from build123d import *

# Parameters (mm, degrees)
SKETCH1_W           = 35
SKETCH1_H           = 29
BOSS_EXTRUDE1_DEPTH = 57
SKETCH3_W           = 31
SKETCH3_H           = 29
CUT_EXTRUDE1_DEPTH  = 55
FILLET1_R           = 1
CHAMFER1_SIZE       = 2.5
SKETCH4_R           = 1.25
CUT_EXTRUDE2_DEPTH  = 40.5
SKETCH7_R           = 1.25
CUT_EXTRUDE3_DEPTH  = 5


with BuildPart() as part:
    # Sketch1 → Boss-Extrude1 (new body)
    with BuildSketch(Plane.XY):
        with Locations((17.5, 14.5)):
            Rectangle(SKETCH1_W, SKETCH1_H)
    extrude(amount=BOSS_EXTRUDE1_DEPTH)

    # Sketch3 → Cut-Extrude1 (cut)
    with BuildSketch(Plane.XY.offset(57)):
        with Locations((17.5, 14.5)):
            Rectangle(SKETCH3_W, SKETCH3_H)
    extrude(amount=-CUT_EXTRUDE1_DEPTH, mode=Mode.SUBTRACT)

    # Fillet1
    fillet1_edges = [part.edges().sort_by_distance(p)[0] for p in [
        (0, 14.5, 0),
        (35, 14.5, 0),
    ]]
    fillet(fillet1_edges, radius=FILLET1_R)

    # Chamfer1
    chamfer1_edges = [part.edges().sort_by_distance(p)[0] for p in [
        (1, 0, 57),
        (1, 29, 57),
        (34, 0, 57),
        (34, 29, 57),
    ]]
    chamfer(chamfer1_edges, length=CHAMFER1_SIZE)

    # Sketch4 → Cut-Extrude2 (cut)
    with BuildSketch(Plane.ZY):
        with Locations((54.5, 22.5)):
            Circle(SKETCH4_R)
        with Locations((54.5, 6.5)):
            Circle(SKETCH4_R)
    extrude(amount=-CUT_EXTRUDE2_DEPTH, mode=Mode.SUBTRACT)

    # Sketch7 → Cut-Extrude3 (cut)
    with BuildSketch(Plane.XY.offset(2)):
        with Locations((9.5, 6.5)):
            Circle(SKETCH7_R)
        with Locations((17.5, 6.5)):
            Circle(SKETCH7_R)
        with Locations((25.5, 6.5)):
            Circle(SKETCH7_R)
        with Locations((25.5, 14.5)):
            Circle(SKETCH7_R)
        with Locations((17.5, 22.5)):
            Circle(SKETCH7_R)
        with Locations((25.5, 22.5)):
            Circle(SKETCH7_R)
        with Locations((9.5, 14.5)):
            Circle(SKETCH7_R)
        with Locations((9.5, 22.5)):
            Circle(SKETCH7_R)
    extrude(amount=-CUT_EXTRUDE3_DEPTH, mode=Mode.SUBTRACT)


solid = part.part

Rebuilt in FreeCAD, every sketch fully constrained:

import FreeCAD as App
import Part
import Sketcher

V = App.Vector
Q = App.Units.Quantity


def edges_at(feature, points):
    """Names of the edges that pass closest to the given points."""
    edges = feature.Shape.Edges
    near = lambda p: min(range(len(edges)), key=lambda i: edges[i].distToShape(Part.Vertex(*p))[0])
    return sorted({f"Edge{near(p) + 1}" for p in points})

doc = App.newDocument("Part")
body = doc.addObject("PartDesign::Body", "Body")

# Sketch on XY plane
sketch1 = doc.addObject("Sketcher::SketchObject", "Sketch")
body.addObject(sketch1)
sketch1.AttachmentSupport = (doc.XY_Plane, [""])
sketch1.MapMode = "FlatFace"
sketch1.addGeometry([
    Part.LineSegment(V(0, 29, 0), V(0, 0, 0)),
    Part.LineSegment(V(0, 0, 0), V(35, 0, 0)),
    Part.LineSegment(V(35, 0, 0), V(35, 29, 0)),
    Part.LineSegment(V(35, 29, 0), V(0, 29, 0)),
], False)
sketch1.addConstraint([
    Sketcher.Constraint("Coincident", 0, 2, 1, 1),
    Sketcher.Constraint("Coincident", 1, 2, 2, 1),
    Sketcher.Constraint("Coincident", 2, 2, 3, 1),
    Sketcher.Constraint("Coincident", 3, 2, 0, 1),
    Sketcher.Constraint("Vertical", 0),
    Sketcher.Constraint("Horizontal", 1),
    Sketcher.Constraint("Vertical", 2),
    Sketcher.Constraint("Horizontal", 3),
    Sketcher.Constraint("Coincident", 0, 2, -1, 1),
    Sketcher.Constraint("DistanceX", 1, 1, 1, 2, Q("35 mm")),
    Sketcher.Constraint("DistanceY", 0, 2, 0, 1, Q("29 mm")),
])
pad1 = doc.addObject("PartDesign::Pad", "Pad")
body.addObject(pad1)
pad1.Profile = sketch1
pad1.Length = 57

# Sketch on XY plane
sketch2 = doc.addObject("Sketcher::SketchObject", "Sketch001")
body.addObject(sketch2)
sketch2.AttachmentSupport = (doc.XY_Plane, [""])
sketch2.MapMode = "FlatFace"
sketch2.AttachmentOffset = App.Placement(V(0, 0, 57), App.Rotation())
sketch2.addGeometry([
    Part.LineSegment(V(2, 29, 0), V(2, 0, 0)),
    Part.LineSegment(V(2, 0, 0), V(33, 0, 0)),
    Part.LineSegment(V(33, 0, 0), V(33, 29, 0)),
    Part.LineSegment(V(33, 29, 0), V(2, 29, 0)),
], False)
sketch2.addConstraint([
    Sketcher.Constraint("Coincident", 0, 2, 1, 1),
    Sketcher.Constraint("Coincident", 1, 2, 2, 1),
    Sketcher.Constraint("Coincident", 2, 2, 3, 1),
    Sketcher.Constraint("Coincident", 3, 2, 0, 1),
    Sketcher.Constraint("Vertical", 0),
    Sketcher.Constraint("Horizontal", 1),
    Sketcher.Constraint("Vertical", 2),
    Sketcher.Constraint("Horizontal", 3),
    Sketcher.Constraint("PointOnObject", 0, 2, -1),
    Sketcher.Constraint("DistanceX", 1, 1, 1, 2, Q("31 mm")),
    Sketcher.Constraint("DistanceY", 0, 2, 0, 1, Q("29 mm")),
    Sketcher.Constraint("DistanceX", -1, 1, 0, 2, Q("2 mm")),
])
pocket1 = doc.addObject("PartDesign::Pocket", "Pocket")
body.addObject(pocket1)
pocket1.Profile = sketch2
pocket1.Length = 55
doc.recompute()

fillet = doc.addObject("PartDesign::Fillet", "Fillet")
body.addObject(fillet)
fillet.Base = (pocket1, edges_at(pocket1, [(0, 14.5, 0), (35, 14.5, 0)]))
fillet.Radius = 1
doc.recompute()

chamfer = doc.addObject("PartDesign::Chamfer", "Chamfer")
body.addObject(chamfer)
chamfer.Base = (fillet, edges_at(fillet, [
    (1, 0, 57),
    (1, 29, 57),
    (34, 0, 57),
    (34, 29, 57),
]))
chamfer.Size = 2.5

# Sketch on YZ plane
sketch3 = doc.addObject("Sketcher::SketchObject", "Sketch002")
body.addObject(sketch3)
sketch3.AttachmentSupport = (doc.YZ_Plane, [""])
sketch3.MapMode = "FlatFace"
sketch3.addGeometry([
    Part.Circle(V(22.5, 54.5, 0), V(0, 0, 1), 1.2),
    Part.Circle(V(6.5, 54.5, 0), V(0, 0, 1), 1.2),
], False)
sketch3.addConstraint([
    Sketcher.Constraint("Equal", 0, 1),
    Sketcher.Constraint("Horizontal", 0, 3, 1, 3),
    Sketcher.Constraint("Diameter", 0, Q("2.5 mm")),
    Sketcher.Constraint("DistanceX", 1, 3, 0, 3, Q("16 mm")),
    Sketcher.Constraint("DistanceX", -1, 1, 0, 3, Q("22.5 mm")),
    Sketcher.Constraint("DistanceY", -1, 1, 0, 3, Q("54.5 mm")),
])
pocket2 = doc.addObject("PartDesign::Pocket", "Pocket001")
body.addObject(pocket2)
pocket2.Profile = sketch3
pocket2.Length = 40.5
pocket2.Reversed = True

# Sketch on XY plane
sketch4 = doc.addObject("Sketcher::SketchObject", "Sketch003")
body.addObject(sketch4)
sketch4.AttachmentSupport = (doc.XY_Plane, [""])
sketch4.MapMode = "FlatFace"
sketch4.AttachmentOffset = App.Placement(V(0, 0, 2), App.Rotation())
sketch4.addGeometry([
    Part.Circle(V(9.5, 6.5, 0), V(0, 0, 1), 1.2),  # 0
    Part.Circle(V(17.5, 6.5, 0), V(0, 0, 1), 1.2),  # 1
    Part.Circle(V(25.5, 6.5, 0), V(0, 0, 1), 1.2),  # 2
    Part.Circle(V(25.5, 14.5, 0), V(0, 0, 1), 1.2),  # 3
    Part.Circle(V(17.5, 22.5, 0), V(0, 0, 1), 1.2),  # 4
    Part.Circle(V(25.5, 22.5, 0), V(0, 0, 1), 1.2),  # 5
    Part.Circle(V(9.5, 14.5, 0), V(0, 0, 1), 1.2),  # 6
    Part.Circle(V(9.5, 22.5, 0), V(0, 0, 1), 1.2),  # 7
], False)
sketch4.addConstraint([
    Sketcher.Constraint("Equal", 0, 1),
    Sketcher.Constraint("Equal", 1, 2),
    Sketcher.Constraint("Equal", 2, 3),
    Sketcher.Constraint("Equal", 3, 4),
    Sketcher.Constraint("Equal", 4, 5),
    Sketcher.Constraint("Equal", 5, 6),
    Sketcher.Constraint("Equal", 6, 7),
    Sketcher.Constraint("Horizontal", 0, 3, 1, 3),
    Sketcher.Constraint("Horizontal", 1, 3, 2, 3),
    Sketcher.Constraint("Horizontal", 4, 3, 5, 3),
    Sketcher.Constraint("Horizontal", 3, 3, 6, 3),
    Sketcher.Constraint("Horizontal", 5, 3, 7, 3),
    Sketcher.Constraint("Vertical", 2, 3, 3, 3),
    Sketcher.Constraint("Vertical", 1, 3, 4, 3),
    Sketcher.Constraint("Vertical", 3, 3, 5, 3),
    Sketcher.Constraint("Vertical", 0, 3, 6, 3),
    Sketcher.Constraint("Vertical", 6, 3, 7, 3),
    Sketcher.Constraint("Diameter", 0, Q("2.5 mm")),
    Sketcher.Constraint("DistanceX", 0, 3, 1, 3, Q("8 mm")),
    Sketcher.Constraint("DistanceX", 1, 3, 2, 3, Q("8 mm")),
    Sketcher.Constraint("DistanceY", 2, 3, 3, 3, Q("8 mm")),
    Sketcher.Constraint("DistanceY", 3, 3, 4, 3, Q("8 mm")),
    Sketcher.Constraint("DistanceX", -1, 1, 0, 3, Q("9.5 mm")),
    Sketcher.Constraint("DistanceY", -1, 1, 0, 3, Q("6.5 mm")),
])
pocket3 = doc.addObject("PartDesign::Pocket", "Pocket002")
body.addObject(pocket3)
pocket3.Profile = sketch4
pocket3.Length = 5

doc.recompute()
